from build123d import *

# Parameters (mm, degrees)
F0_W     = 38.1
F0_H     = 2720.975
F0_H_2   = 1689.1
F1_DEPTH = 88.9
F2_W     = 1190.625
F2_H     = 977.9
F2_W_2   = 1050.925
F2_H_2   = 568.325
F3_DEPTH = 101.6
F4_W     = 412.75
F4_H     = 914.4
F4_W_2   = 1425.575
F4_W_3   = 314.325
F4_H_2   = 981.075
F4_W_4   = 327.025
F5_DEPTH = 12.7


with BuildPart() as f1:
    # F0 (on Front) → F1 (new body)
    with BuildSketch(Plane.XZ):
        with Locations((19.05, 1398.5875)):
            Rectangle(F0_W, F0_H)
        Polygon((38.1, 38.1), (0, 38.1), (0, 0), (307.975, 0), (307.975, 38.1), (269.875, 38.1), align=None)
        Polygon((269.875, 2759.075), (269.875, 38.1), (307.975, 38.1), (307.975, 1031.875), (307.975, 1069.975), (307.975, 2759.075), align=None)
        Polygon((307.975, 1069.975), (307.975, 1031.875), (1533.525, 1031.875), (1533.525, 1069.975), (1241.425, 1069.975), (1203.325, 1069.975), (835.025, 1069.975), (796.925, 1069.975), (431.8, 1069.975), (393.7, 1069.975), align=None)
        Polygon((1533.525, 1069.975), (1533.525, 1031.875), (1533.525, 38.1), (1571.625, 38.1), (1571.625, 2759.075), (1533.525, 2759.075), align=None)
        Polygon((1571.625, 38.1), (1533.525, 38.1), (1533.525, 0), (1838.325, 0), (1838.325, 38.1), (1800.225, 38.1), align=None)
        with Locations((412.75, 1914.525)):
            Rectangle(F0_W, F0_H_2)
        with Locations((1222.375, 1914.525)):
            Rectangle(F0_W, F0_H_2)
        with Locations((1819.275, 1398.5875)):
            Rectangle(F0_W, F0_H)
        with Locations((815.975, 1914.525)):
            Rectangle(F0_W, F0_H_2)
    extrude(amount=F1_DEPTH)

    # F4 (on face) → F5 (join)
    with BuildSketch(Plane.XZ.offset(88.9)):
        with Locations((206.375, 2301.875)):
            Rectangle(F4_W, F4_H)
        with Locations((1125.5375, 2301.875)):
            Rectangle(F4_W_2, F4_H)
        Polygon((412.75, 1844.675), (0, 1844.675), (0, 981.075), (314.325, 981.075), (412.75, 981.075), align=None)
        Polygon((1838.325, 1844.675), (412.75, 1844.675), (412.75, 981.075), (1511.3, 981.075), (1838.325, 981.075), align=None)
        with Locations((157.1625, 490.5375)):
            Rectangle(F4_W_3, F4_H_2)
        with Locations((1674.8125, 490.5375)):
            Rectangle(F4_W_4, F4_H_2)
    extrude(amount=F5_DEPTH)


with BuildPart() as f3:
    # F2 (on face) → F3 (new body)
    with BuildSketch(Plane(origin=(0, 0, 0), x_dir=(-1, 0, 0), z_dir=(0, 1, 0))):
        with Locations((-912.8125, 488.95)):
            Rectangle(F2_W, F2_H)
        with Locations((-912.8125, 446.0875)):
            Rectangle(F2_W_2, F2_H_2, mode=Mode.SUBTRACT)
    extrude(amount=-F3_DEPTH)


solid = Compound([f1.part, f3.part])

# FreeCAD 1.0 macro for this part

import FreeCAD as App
import Part
import Sketcher

V = App.Vector
Q = App.Units.Quantity

doc = App.newDocument("Part")
body = doc.addObject("PartDesign::Body", "Body")

# Sketch on XZ plane
sketch1 = body.newObject("Sketcher::SketchObject", "Sketch")
sketch1.AttachmentSupport = (doc.getObject("XZ_Plane"), [""])
sketch1.MapMode = "FlatFace"
sketch1.addGeometry([
    Part.LineSegment(V(0, 2759, 0), V(0, 0, 0)),  # 0
    Part.LineSegment(V(0, 0, 0), V(308, 0, 0)),  # 1
    Part.LineSegment(V(308, 0, 0), V(308, 1032, 0)),  # 2
    Part.LineSegment(V(308, 1032, 0), V(1534, 1032, 0)),  # 3
    Part.LineSegment(V(1534, 1032, 0), V(1534, 0, 0)),  # 4
    Part.LineSegment(V(1534, 0, 0), V(1838, 0, 0)),  # 5
    Part.LineSegment(V(1838, 0, 0), V(1838, 2759, 0)),  # 6
    Part.LineSegment(V(1838, 2759, 0), V(1800, 2759, 0)),  # 7
    Part.LineSegment(V(1800, 2759, 0), V(1800, 38, 0)),  # 8
    Part.LineSegment(V(1800, 38, 0), V(1572, 38, 0)),  # 9
    Part.LineSegment(V(1572, 38, 0), V(1572, 2759, 0)),  # 10
    Part.LineSegment(V(1572, 2759, 0), V(1534, 2759, 0)),  # 11
    Part.LineSegment(V(1534, 2759, 0), V(1534, 1070, 0)),  # 12
    Part.LineSegment(V(1534, 1070, 0), V(1241, 1070, 0)),  # 13
    Part.LineSegment(V(1241, 1070, 0), V(1241, 2759, 0)),  # 14
    Part.LineSegment(V(1241, 2759, 0), V(1203, 2759, 0)),  # 15
    Part.LineSegment(V(1203, 2759, 0), V(1203, 1070, 0)),  # 16
    Part.LineSegment(V(1203, 1070, 0), V(835, 1070, 0)),  # 17
    Part.LineSegment(V(835, 1070, 0), V(835, 2759, 0)),  # 18
    Part.LineSegment(V(835, 2759, 0), V(797, 2759, 0)),  # 19
    Part.LineSegment(V(797, 2759, 0), V(797, 1070, 0)),  # 20
    Part.LineSegment(V(797, 1070, 0), V(432, 1070, 0)),  # 21
    Part.LineSegment(V(432, 1070, 0), V(432, 2759, 0)),  # 22
    Part.LineSegment(V(432, 2759, 0), V(394, 2759, 0)),  # 23
    Part.LineSegment(V(394, 2759, 0), V(394, 1070, 0)),  # 24
    Part.LineSegment(V(394, 1070, 0), V(308, 1070, 0)),  # 25
    Part.LineSegment(V(308, 1070, 0), V(308, 2759, 0)),  # 26
    Part.LineSegment(V(308, 2759, 0), V(270, 2759, 0)),  # 27
    Part.LineSegment(V(270, 2759, 0), V(270, 38, 0)),  # 28
    Part.LineSegment(V(270, 38, 0), V(38, 38, 0)),  # 29
    Part.LineSegment(V(38, 38, 0), V(38, 2759, 0)),  # 30
    Part.LineSegment(V(38, 2759, 0), V(0, 2759, 0)),  # 31
], False)
sketch1.addConstraint([
    Sketcher.Constraint("Coincident", 0, 2, 1, 1),
    Sketcher.Constraint("Coincident", 1, 2, 2, 1),
    Sketcher.Constraint("Coincident", 2, 2, 3, 1),
    Sketcher.Constraint("Coincident", 3, 2, 4, 1),
    Sketcher.Constraint("Coincident", 4, 2, 5, 1),
    Sketcher.Constraint("Coincident", 5, 2, 6, 1),
    Sketcher.Constraint("Coincident", 6, 2, 7, 1),
    Sketcher.Constraint("Coincident", 7, 2, 8, 1),
    Sketcher.Constraint("Coincident", 8, 2, 9, 1),
    Sketcher.Constraint("Coincident", 9, 2, 10, 1),
    Sketcher.Constraint("Coincident", 10, 2, 11, 1),
    Sketcher.Constraint("Coincident", 11, 2, 12, 1),
    Sketcher.Constraint("Coincident", 12, 2, 13, 1),
    Sketcher.Constraint("Coincident", 13, 2, 14, 1),
    Sketcher.Constraint("Coincident", 14, 2, 15, 1),
    Sketcher.Constraint("Coincident", 15, 2, 16, 1),
    Sketcher.Constraint("Coincident", 16, 2, 17, 1),
    Sketcher.Constraint("Coincident", 17, 2, 18, 1),
    Sketcher.Constraint("Coincident", 18, 2, 19, 1),
    Sketcher.Constraint("Coincident", 19, 2, 20, 1),
    Sketcher.Constraint("Coincident", 20, 2, 21, 1),
    Sketcher.Constraint("Coincident", 21, 2, 22, 1),
    Sketcher.Constraint("Coincident", 22, 2, 23, 1),
    Sketcher.Constraint("Coincident", 23, 2, 24, 1),
    Sketcher.Constraint("Coincident", 24, 2, 25, 1),
    Sketcher.Constraint("Coincident", 25, 2, 26, 1),
    Sketcher.Constraint("Coincident", 26, 2, 27, 1),
    Sketcher.Constraint("Coincident", 27, 2, 28, 1),
    Sketcher.Constraint("Coincident", 28, 2, 29, 1),
    Sketcher.Constraint("Coincident", 29, 2, 30, 1),
    Sketcher.Constraint("Coincident", 30, 2, 31, 1),
    Sketcher.Constraint("Coincident", 31, 2, 0, 1),
    Sketcher.Constraint("Vertical", 0),
    Sketcher.Constraint("Horizontal", 1),
    Sketcher.Constraint("Vertical", 2),
    Sketcher.Constraint("Horizontal", 3),
    Sketcher.Constraint("Vertical", 4),
    Sketcher.Constraint("Horizontal", 5),
    Sketcher.Constraint("Vertical", 6),
    Sketcher.Constraint("Horizontal", 7),
    Sketcher.Constraint("Vertical", 8),
    Sketcher.Constraint("Horizontal", 9),
    Sketcher.Constraint("Vertical", 10),
    Sketcher.Constraint("Horizontal", 11),
    Sketcher.Constraint("Vertical", 12),
    Sketcher.Constraint("Horizontal", 13),
    Sketcher.Constraint("Vertical", 14),
    Sketcher.Constraint("Horizontal", 15),
    Sketcher.Constraint("Vertical", 16),
    Sketcher.Constraint("Horizontal", 17),
    Sketcher.Constraint("Vertical", 18),
    Sketcher.Constraint("Horizontal", 19),
    Sketcher.Constraint("Vertical", 20),
    Sketcher.Constraint("Horizontal", 21),
    Sketcher.Constraint("Vertical", 22),
    Sketcher.Constraint("Horizontal", 23),
    Sketcher.Constraint("Vertical", 24),
    Sketcher.Constraint("Horizontal", 25),
    Sketcher.Constraint("Vertical", 26),
    Sketcher.Constraint("Horizontal", 27),
    Sketcher.Constraint("Vertical", 28),
    Sketcher.Constraint("Horizontal", 29),
    Sketcher.Constraint("Vertical", 30),
    Sketcher.Constraint("Horizontal", 31),
    Sketcher.Constraint("Coincident", 0, 2, -1, 1),
    Sketcher.Constraint("PointOnObject", 4, 2, -1),
    Sketcher.Constraint("Horizontal", 7, 2, 10, 2),
    Sketcher.Constraint("Horizontal", 11, 2, 14, 2),
    Sketcher.Constraint("Horizontal", 13, 2, 16, 2),
    Sketcher.Constraint("Horizontal", 15, 2, 18, 2),
    Sketcher.Constraint("Horizontal", 17, 2, 20, 2),
    Sketcher.Constraint("Horizontal", 19, 2, 22, 2),
    Sketcher.Constraint("Horizontal", 21, 2, 24, 2),
    Sketcher.Constraint("Horizontal", 23, 2, 26, 2),
    Sketcher.Constraint("Horizontal", 9, 2, 28, 2),
    Sketcher.Constraint("Horizontal", 27, 2, 30, 2),
    Sketcher.Constraint("Vertical", 4, 2, 11, 2),
    Sketcher.Constraint("Vertical", 2, 2, 25, 2),
    Sketcher.Constraint("Equal", 7, 11),
    Sketcher.Constraint("Equal", 11, 15),
    Sketcher.Constraint("Equal", 15, 19),
    Sketcher.Constraint("Equal", 19, 23),
    Sketcher.Constraint("Equal", 23, 27),
    Sketcher.Constraint("Equal", 27, 31),
    Sketcher.Constraint("DistanceX", 5, 1, 5, 2, Q("12 in")),
    Sketcher.Constraint("DistanceX", 9, 2, 9, 1, Q("9 in")),
    Sketcher.Constraint("DistanceX", 13, 2, 13, 1, Q("11.5 in")),
    Sketcher.Constraint("DistanceX", 17, 2, 17, 1, Q("14.5 in")),
    Sketcher.Constraint("DistanceY", 12, 2, 12, 1, Q("66.5 in")),
    Sketcher.Constraint("DistanceX", -1, 1, 21, 2, Q("17 in")),
    Sketcher.Constraint("DistanceY", 3, 2, 6, 2, Q("68 in")),
    Sketcher.Constraint("DistanceX", 3, 1, 3, 2, Q("48.25 in")),
    Sketcher.Constraint("DistanceY", -1, 1, 8, 2, Q("1.5 in")),
    Sketcher.Constraint("DistanceX", 1, 1, 1, 2, Q("12.125 in")),
    Sketcher.Constraint("DistanceY", 0, 2, 0, 1, Q("108.625 in")),
])
pad1 = body.newObject("PartDesign::Pad", "Pad")
pad1.Profile = sketch1
pad1.Length = Q("3.5 in")

# Sketch on XZ plane
sketch2 = body.newObject("Sketcher::SketchObject", "Sketch001")
sketch2.AttachmentSupport = (doc.getObject("XZ_Plane"), [""])
sketch2.MapMode = "FlatFace"
sketch2.AttachmentOffset = App.Placement(V(0, 0, 3.5 * 25.4), App.Rotation())
sketch2.addGeometry([
    Part.LineSegment(V(0, 2759, 0), V(0, 0, 0)),  # 0
    Part.LineSegment(V(0, 0, 0), V(314, 0, 0)),  # 1
    Part.LineSegment(V(314, 0, 0), V(314, 981, 0)),  # 2
    Part.LineSegment(V(314, 981, 0), V(1511, 981, 0)),  # 3
    Part.LineSegment(V(1511, 981, 0), V(1511, 0, 0)),  # 4
    Part.LineSegment(V(1511, 0, 0), V(1838, 0, 0)),  # 5
    Part.LineSegment(V(1838, 0, 0), V(1838, 2759, 0)),  # 6
    Part.LineSegment(V(1838, 2759, 0), V(0, 2759, 0)),  # 7
], False)
sketch2.addConstraint([
    Sketcher.Constraint("Coincident", 0, 2, 1, 1),
    Sketcher.Constraint("Coincident", 1, 2, 2, 1),
    Sketcher.Constraint("Coincident", 2, 2, 3, 1),
    Sketcher.Constraint("Coincident", 3, 2, 4, 1),
    Sketcher.Constraint("Coincident", 4, 2, 5, 1),
    Sketcher.Constraint("Coincident", 5, 2, 6, 1),
    Sketcher.Constraint("Coincident", 6, 2, 7, 1),
    Sketcher.Constraint("Coincident", 7, 2, 0, 1),
    Sketcher.Constraint("Vertical", 0),
    Sketcher.Constraint("Horizontal", 1),
    Sketcher.Constraint("Vertical", 2),
    Sketcher.Constraint("Horizontal", 3),
    Sketcher.Constraint("Vertical", 4),
    Sketcher.Constraint("Horizontal", 5),
    Sketcher.Constraint("Vertical", 6),
    Sketcher.Constraint("Horizontal", 7),
    Sketcher.Constraint("Coincident", 0, 2, -1, 1),
    Sketcher.Constraint("PointOnObject", 4, 2, -1),
    Sketcher.Constraint("DistanceX", 1, 2, 5, 2, Q("60 in")),
    Sketcher.Constraint("DistanceY", 3, 2, 6, 2, Q("70 in")),
    Sketcher.Constraint("DistanceX", -1, 1, 3, 2, Q("59.5 in")),
    Sketcher.Constraint("DistanceX", 1, 1, 1, 2, Q("12.375 in")),
    Sketcher.Constraint("DistanceY", 0, 2, 0, 1, Q("108.625 in")),
])
pad2 = body.newObject("PartDesign::Pad", "Pad001")
pad2.Profile = sketch2
pad2.Length = Q("0.5 in")
body2 = doc.addObject("PartDesign::Body", "Body001")

# Sketch on XZ plane
sketch3 = body2.newObject("Sketcher::SketchObject", "Sketch002")
sketch3.AttachmentSupport = (doc.getObject("XZ_Plane001"), [""])
sketch3.MapMode = "FlatFace"
sketch3.addGeometry([
    Part.LineSegment(V(1508, 978, 0), V(1508, 0, 0)),  # 0
    Part.LineSegment(V(1508, 0, 0), V(318, 0, 0)),  # 1
    Part.LineSegment(V(318, 0, 0), V(318, 978, 0)),  # 2
    Part.LineSegment(V(318, 978, 0), V(1508, 978, 0)),  # 3
    Part.LineSegment(V(387, 162, 0), V(1438, 162, 0)),  # 4
    Part.LineSegment(V(1438, 162, 0), V(1438, 730, 0)),  # 5
    Part.LineSegment(V(1438, 730, 0), V(387, 730, 0)),  # 6
    Part.LineSegment(V(387, 730, 0), V(387, 162, 0)),  # 7
], False)
sketch3.addConstraint([
    Sketcher.Constraint("Coincident", 0, 2, 1, 1),
    Sketcher.Constraint("Coincident", 1, 2, 2, 1),
    Sketcher.Constraint("Coincident", 2, 2, 3, 1),
    Sketcher.Constraint("Coincident", 3, 2, 0, 1),
    Sketcher.Constraint("Coincident", 4, 2, 5, 1),
    Sketcher.Constraint("Coincident", 5, 2, 6, 1),
    Sketcher.Constraint("Coincident", 6, 2, 7, 1),
    Sketcher.Constraint("Coincident", 7, 2, 4, 1),
    Sketcher.Constraint("Vertical", 0),
    Sketcher.Constraint("Horizontal", 1),
    Sketcher.Constraint("Vertical", 2),
    Sketcher.Constraint("Horizontal", 3),
    Sketcher.Constraint("Horizontal", 4),
    Sketcher.Constraint("Vertical", 5),
    Sketcher.Constraint("Horizontal", 6),
    Sketcher.Constraint("Vertical", 7),
    Sketcher.Constraint("PointOnObject", 0, 2, -1),
    Sketcher.Constraint("DistanceY", 0, 2, 0, 1, Q("38.5 in")),
    Sketcher.Constraint("DistanceX", -1, 1, 1, 2, Q("12.5 in")),
    Sketcher.Constraint("DistanceX", 1, 2, 1, 1, Q("46.875 in")),
    Sketcher.Constraint("DistanceX", 4, 1, 4, 2, Q("41.375 in")),
    Sketcher.Constraint("DistanceY", 5, 1, 5, 2, Q("22.375 in")),
    Sketcher.Constraint("DistanceY", -1, 1, 5, 2, Q("28.75 in")),
    Sketcher.Constraint("DistanceX", -1, 1, 6, 2, Q("15.25 in")),
])
pad3 = body2.newObject("PartDesign::Pad", "Pad002")
pad3.Profile = sketch3
pad3.Length = Q("4 in")

doc.recompute()
